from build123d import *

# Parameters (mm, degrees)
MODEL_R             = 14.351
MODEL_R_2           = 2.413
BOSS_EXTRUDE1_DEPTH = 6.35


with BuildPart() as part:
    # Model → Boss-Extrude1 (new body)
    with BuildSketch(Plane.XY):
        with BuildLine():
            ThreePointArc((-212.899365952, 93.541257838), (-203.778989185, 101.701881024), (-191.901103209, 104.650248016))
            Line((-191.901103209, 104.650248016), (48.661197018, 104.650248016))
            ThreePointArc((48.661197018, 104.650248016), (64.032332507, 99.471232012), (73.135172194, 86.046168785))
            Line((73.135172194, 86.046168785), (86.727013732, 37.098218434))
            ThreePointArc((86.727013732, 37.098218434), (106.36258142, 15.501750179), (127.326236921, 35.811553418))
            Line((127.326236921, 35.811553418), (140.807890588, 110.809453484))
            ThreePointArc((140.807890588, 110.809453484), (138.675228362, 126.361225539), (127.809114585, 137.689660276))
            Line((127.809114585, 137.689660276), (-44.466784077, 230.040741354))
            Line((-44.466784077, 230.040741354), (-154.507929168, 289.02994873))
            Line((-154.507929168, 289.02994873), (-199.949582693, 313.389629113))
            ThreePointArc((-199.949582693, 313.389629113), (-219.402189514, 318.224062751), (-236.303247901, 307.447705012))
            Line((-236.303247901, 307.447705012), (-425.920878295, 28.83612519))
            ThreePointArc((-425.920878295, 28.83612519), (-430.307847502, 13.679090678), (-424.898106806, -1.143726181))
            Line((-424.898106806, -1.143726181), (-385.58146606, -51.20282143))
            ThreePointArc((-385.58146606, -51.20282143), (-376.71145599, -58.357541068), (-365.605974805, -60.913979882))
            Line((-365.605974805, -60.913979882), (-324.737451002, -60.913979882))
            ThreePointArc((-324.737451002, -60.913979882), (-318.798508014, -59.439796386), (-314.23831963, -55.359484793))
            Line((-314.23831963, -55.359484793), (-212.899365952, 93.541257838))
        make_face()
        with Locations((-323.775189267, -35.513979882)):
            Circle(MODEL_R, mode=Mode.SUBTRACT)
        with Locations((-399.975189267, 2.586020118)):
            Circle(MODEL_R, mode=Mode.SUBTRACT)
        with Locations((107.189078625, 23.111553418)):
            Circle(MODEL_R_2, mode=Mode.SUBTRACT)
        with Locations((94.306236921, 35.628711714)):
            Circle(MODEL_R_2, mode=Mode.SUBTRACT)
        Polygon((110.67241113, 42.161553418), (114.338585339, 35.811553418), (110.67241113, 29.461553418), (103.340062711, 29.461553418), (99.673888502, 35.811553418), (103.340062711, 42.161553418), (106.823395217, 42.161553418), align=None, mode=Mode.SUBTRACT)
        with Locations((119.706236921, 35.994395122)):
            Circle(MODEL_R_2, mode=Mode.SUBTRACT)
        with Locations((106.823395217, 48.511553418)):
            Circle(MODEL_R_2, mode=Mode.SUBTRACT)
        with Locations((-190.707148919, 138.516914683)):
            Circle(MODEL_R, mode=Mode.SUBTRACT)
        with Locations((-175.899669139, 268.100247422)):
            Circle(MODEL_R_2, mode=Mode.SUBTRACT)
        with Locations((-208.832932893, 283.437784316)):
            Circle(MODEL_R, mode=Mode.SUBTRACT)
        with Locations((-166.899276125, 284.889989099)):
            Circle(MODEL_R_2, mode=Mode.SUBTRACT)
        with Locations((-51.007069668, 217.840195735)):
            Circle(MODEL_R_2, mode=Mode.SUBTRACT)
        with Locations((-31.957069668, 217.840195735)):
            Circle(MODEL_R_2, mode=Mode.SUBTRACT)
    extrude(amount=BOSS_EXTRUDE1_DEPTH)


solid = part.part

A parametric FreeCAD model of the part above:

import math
import FreeCAD as App
import Part
import Sketcher

V = App.Vector
Q = App.Units.Quantity

doc = App.newDocument("Part")
body = doc.addObject("PartDesign::Body", "Body")

# Sketch on XY plane
sketch1 = body.newObject("Sketcher::SketchObject", "Sketch")
sketch1.AttachmentSupport = (doc.getObject("XY_Plane"), [""])
sketch1.MapMode = "FlatFace"
sketch1.addGeometry(Part.ArcOfCircle(Part.Circle(V(-191.9, 79.3, 0), V(0, 0, 1), 25.4), math.radians(90), math.radians(146)), False)
sketch1.addGeometry(Part.LineSegment(V(-191.9, 104.7, 0), V(48.7, 104.7, 0)), False)
sketch1.addGeometry(Part.ArcOfCircle(Part.Circle(V(48.7, 79.3, 0), V(0, 0, 1), 25.4), math.radians(16), math.radians(90)), False)
sketch1.addGeometry(Part.LineSegment(V(73.1, 86, 0), V(86.7, 37.1, 0)), False)
sketch1.addGeometry(Part.ArcOfCircle(Part.Circle(V(107, 35.8, 0), V(0, 0, 1), 20.3), math.radians(176), math.radians(360)), False)
sketch1.addGeometry(Part.LineSegment(V(127.3, 35.8, 0), V(140.8, 110.8, 0)), False)
sketch1.addGeometry(Part.ArcOfCircle(Part.Circle(V(115.8, 115.3, 0), V(0, 0, 1), 25.4), math.radians(-10), math.radians(62)), False)
sketch1.addGeometry(Part.LineSegment(V(127.8, 137.7, 0), V(-44.5, 230, 0)), False)
sketch1.addGeometry(Part.LineSegment(V(-44.5, 230, 0), V(-154.5, 289, 0)), False)
sketch1.addGeometry(Part.LineSegment(V(-154.5, 289, 0), V(-199.9, 313.4, 0)), False)
sketch1.addGeometry(Part.ArcOfCircle(Part.Circle(V(-215.3, 293.2, 0), V(0, 0, 1), 25.4), math.radians(53), math.radians(146)), False)
sketch1.addGeometry(Part.LineSegment(V(-236.3, 307.4, 0), V(-425.9, 28.8, 0)), False)
sketch1.addGeometry(Part.ArcOfCircle(Part.Circle(V(-404.9, 14.5, 0), V(0, 0, 1), 25.4), math.radians(146), math.radians(218)), False)
sketch1.addGeometry(Part.LineSegment(V(-424.9, -1.1, 0), V(-385.6, -51.2, 0)), False)
sketch1.addGeometry(Part.ArcOfCircle(Part.Circle(V(-365.6, -35.5, 0), V(0, 0, 1), 25.4), math.radians(-142), math.radians(-90)), False)
sketch1.addGeometry(Part.LineSegment(V(-365.6, -60.9, 0), V(-324.7, -60.9, 0)), False)
sketch1.addGeometry(Part.ArcOfCircle(Part.Circle(V(-324.7, -48.2, 0), V(0, 0, 1), 12.7), math.radians(-90), math.radians(-34)), False)
sketch1.addGeometry(Part.LineSegment(V(-314.2, -55.4, 0), V(-212.9, 93.5, 0)), False)
sketch1.addGeometry(Part.Circle(V(-323.8, -35.5, 0), V(0, 0, 1), 14.4), False)
sketch1.addGeometry(Part.Circle(V(-400, 2.6, 0), V(0, 0, 1), 14.4), False)
sketch1.addGeometry(Part.Circle(V(107.2, 23.1, 0), V(0, 0, 1), 2.4), False)
sketch1.addGeometry(Part.Circle(V(94.3, 35.6, 0), V(0, 0, 1), 2.4), False)
sketch1.addGeometry(Part.LineSegment(V(103.3, 42.2, 0), V(110.7, 42.2, 0)), False)
sketch1.addGeometry(Part.LineSegment(V(110.7, 42.2, 0), V(114.3, 35.8, 0)), False)
sketch1.addGeometry(Part.LineSegment(V(114.3, 35.8, 0), V(110.7, 29.5, 0)), False)
sketch1.addGeometry(Part.LineSegment(V(110.7, 29.5, 0), V(103.3, 29.5, 0)), False)
sketch1.addGeometry(Part.LineSegment(V(103.3, 29.5, 0), V(99.7, 35.8, 0)), False)
sketch1.addGeometry(Part.LineSegment(V(99.7, 35.8, 0), V(103.3, 42.2, 0)), False)
sketch1.addGeometry(Part.Circle(V(119.7, 36, 0), V(0, 0, 1), 2.4), False)
sketch1.addGeometry(Part.Circle(V(106.8, 48.5, 0), V(0, 0, 1), 2.4), False)
sketch1.addGeometry(Part.Circle(V(-190.7, 138.5, 0), V(0, 0, 1), 14.4), False)
sketch1.addGeometry(Part.Circle(V(-175.9, 268.1, 0), V(0, 0, 1), 2.4), False)
sketch1.addGeometry(Part.Circle(V(-208.8, 283.4, 0), V(0, 0, 1), 14.4), False)
sketch1.addGeometry(Part.Circle(V(-166.9, 284.9, 0), V(0, 0, 1), 2.4), False)
sketch1.addGeometry(Part.Circle(V(-51, 217.8, 0), V(0, 0, 1), 2.4), False)
sketch1.addGeometry(Part.Circle(V(-32, 217.8, 0), V(0, 0, 1), 2.4), False)
sketch1.addConstraint(Sketcher.Constraint("Tangent", 0, 1, 1, 1))
sketch1.addConstraint(Sketcher.Constraint("Tangent", 1, 2, 2, 2))
sketch1.addConstraint(Sketcher.Constraint("Tangent", 2, 1, 3, 1))
sketch1.addConstraint(Sketcher.Constraint("Coincident", 3, 2, 4, 1))
sketch1.addConstraint(Sketcher.Constraint("Coincident", 4, 2, 5, 1))
sketch1.addConstraint(Sketcher.Constraint("Tangent", 5, 2, 6, 1))
sketch1.addConstraint(Sketcher.Constraint("Tangent", 6, 2, 7, 1))
sketch1.addConstraint(Sketcher.Constraint("Coincident", 7, 2, 8, 1))
sketch1.addConstraint(Sketcher.Constraint("Coincident", 8, 2, 9, 1))
sketch1.addConstraint(Sketcher.Constraint("Coincident", 9, 2, 10, 1))
sketch1.addConstraint(Sketcher.Constraint("Tangent", 10, 2, 11, 1))
sketch1.addConstraint(Sketcher.Constraint("Tangent", 11, 2, 12, 1))
sketch1.addConstraint(Sketcher.Constraint("Tangent", 12, 2, 13, 1))
sketch1.addConstraint(Sketcher.Constraint("Tangent", 13, 2, 14, 1))
sketch1.addConstraint(Sketcher.Constraint("Tangent", 14, 2, 15, 1))
sketch1.addConstraint(Sketcher.Constraint("Tangent", 15, 2, 16, 1))
sketch1.addConstraint(Sketcher.Constraint("Tangent", 16, 2, 17, 1))
sketch1.addConstraint(Sketcher.Constraint("Tangent", 17, 2, 0, 2))
sketch1.addConstraint(Sketcher.Constraint("Coincident", 22, 2, 23, 1))
sketch1.addConstraint(Sketcher.Constraint("Coincident", 23, 2, 24, 1))
sketch1.addConstraint(Sketcher.Constraint("Coincident", 24, 2, 25, 1))
sketch1.addConstraint(Sketcher.Constraint("Coincident", 25, 2, 26, 1))
sketch1.addConstraint(Sketcher.Constraint("Coincident", 26, 2, 27, 1))
sketch1.addConstraint(Sketcher.Constraint("Coincident", 27, 2, 22, 1))
sketch1.addConstraint(Sketcher.Constraint("Horizontal", 1))
sketch1.addConstraint(Sketcher.Constraint("Horizontal", 15))
sketch1.addConstraint(Sketcher.Constraint("Horizontal", 22))
sketch1.addConstraint(Sketcher.Constraint("Horizontal", 25))
sketch1.addConstraint(Sketcher.Constraint("Equal", 0, 2))
sketch1.addConstraint(Sketcher.Constraint("Equal", 2, 6))
sketch1.addConstraint(Sketcher.Constraint("Equal", 6, 10))
sketch1.addConstraint(Sketcher.Constraint("Equal", 10, 12))
sketch1.addConstraint(Sketcher.Constraint("Equal", 12, 14))
sketch1.addConstraint(Sketcher.Constraint("Equal", 18, 19))
sketch1.addConstraint(Sketcher.Constraint("Equal", 20, 21))
sketch1.addConstraint(Sketcher.Constraint("Equal", 21, 28))
sketch1.addConstraint(Sketcher.Constraint("Equal", 28, 29))
sketch1.addConstraint(Sketcher.Constraint("Equal", 19, 30))
sketch1.addConstraint(Sketcher.Constraint("Equal", 29, 31))
sketch1.addConstraint(Sketcher.Constraint("Equal", 30, 32))
sketch1.addConstraint(Sketcher.Constraint("Equal", 31, 33))
sketch1.addConstraint(Sketcher.Constraint("Equal", 33, 34))
sketch1.addConstraint(Sketcher.Constraint("Equal", 34, 35))
sketch1.addConstraint(Sketcher.Constraint("Parallel", 7, 8))
sketch1.addConstraint(Sketcher.Constraint("Parallel", 8, 9))
sketch1.addConstraint(Sketcher.Constraint("Parallel", 11, 17))
sketch1.addConstraint(Sketcher.Constraint("Parallel", 23, 26))
sketch1.addConstraint(Sketcher.Constraint("Parallel", 24, 27))
sketch1.addConstraint(Sketcher.Constraint("Horizontal", 14, 3, 18, 3))
sketch1.addConstraint(Sketcher.Constraint("Horizontal", 34, 3, 35, 3))
sketch1.addConstraint(Sketcher.Constraint("Horizontal", 4, 2, 23, 2))
sketch1.addConstraint(Sketcher.Constraint("Horizontal", 23, 2, 26, 2))
sketch1.addConstraint(Sketcher.Constraint("Vertical", 22, 2, 24, 2))
sketch1.addConstraint(Sketcher.Constraint("Vertical", 25, 2, 27, 2))
sketch1.addConstraint(Sketcher.Constraint("Radius", 0, Q("1 in")))
sketch1.addConstraint(Sketcher.Constraint("Radius", 4, Q("0.8 in")))
sketch1.addConstraint(Sketcher.Constraint("Radius", 16, Q("0.5 in")))
sketch1.addConstraint(Sketcher.Constraint("Diameter", 18, Q("1.13 in")))
sketch1.addConstraint(Sketcher.Constraint("Diameter", 20, Q("0.19 in")))
sketch1.addConstraint(Sketcher.Constraint("Distance", 3, Q("2 in")))
sketch1.addConstraint(Sketcher.Constraint("Distance", 5, Q("3 in")))
sketch1.addConstraint(Sketcher.Constraint("Angle", 23, Q("-60 deg")))
sketch1.addConstraint(Sketcher.Constraint("DistanceX", 19, 3, 18, 3, Q("3 in")))
sketch1.addConstraint(Sketcher.Constraint("DistanceY", 16, 3, 19, 3, Q("2 in")))
sketch1.addConstraint(Sketcher.Constraint("DistanceX", 21, 3, 28, 3, Q("1 in")))
sketch1.addConstraint(Sketcher.Constraint("DistanceY", 20, 3, 29, 3, Q("1 in")))
sketch1.addConstraint(Sketcher.Constraint("DistanceY", 20, 3, 4, 3, Q("0.5 in")))
sketch1.addConstraint(Sketcher.Constraint("DistanceX", 21, 3, 4, 3, Q("0.5 in")))
sketch1.addConstraint(Sketcher.Constraint("DistanceY", 20, 3, 4, 2, Q("0.5 in")))
sketch1.addConstraint(Sketcher.Constraint("DistanceY", 24, 2, 22, 2, Q("0.5 in")))
sketch1.addConstraint(Sketcher.Constraint("DistanceX", 34, 3, 35, 3, Q("0.75 in")))
sketch1.addConstraint(Sketcher.Constraint("DistanceX", 1, 1, 1, 2, 240.5623))
sketch1.addConstraint(Sketcher.Constraint("DistanceX", 22, 1, 22, 2, 7.332348))
sketch1.addConstraint(Sketcher.Constraint("DistanceX", 2, 3, 29, 3, 58.162198))
sketch1.addConstraint(Sketcher.Constraint("DistanceY", 0, 3, 31, 3, 188.849999))
sketch1.addConstraint(Sketcher.Constraint("DistanceX", 31, 3, 34, 3, 124.892599))
sketch1.addConstraint(Sketcher.Constraint("DistanceX", 6, 3, 5, 2, 24.9993))
sketch1.addConstraint(Sketcher.Constraint("DistanceY", 31, 3, 8, 2, 20.929701))
sketch1.addConstraint(Sketcher.Constraint("Distance", 7, 195.467919))
sketch1.addConstraint(Sketcher.Constraint("Distance", 9, 51.559072))
sketch1.addConstraint(Sketcher.Constraint("Distance", 11, 337.015219))
sketch1.addConstraint(Sketcher.Constraint("DistanceX", 15, 1, 15, 2, 40.868524))
sketch1.addConstraint(Sketcher.Constraint("DistanceY", -1, 1, 0, 3, 79.250248))
sketch1.addConstraint(Sketcher.Constraint("DistanceX", -1, 1, 6, 3, 115.808591))
sketch1.addConstraint(Sketcher.Constraint("DistanceY", -1, 1, 6, 3, 115.303338))
sketch1.addConstraint(Sketcher.Constraint("DistanceY", 14, 3, -1, 1, 35.51398))
sketch1.addConstraint(Sketcher.Constraint("DistanceX", 16, 3, -1, 1, 324.737451))
sketch1.addConstraint(Sketcher.Constraint("DistanceX", 18, 3, -1, 1, 323.775189))
sketch1.addConstraint(Sketcher.Constraint("DistanceX", -1, 1, 20, 3, 107.189079))
sketch1.addConstraint(Sketcher.Constraint("DistanceY", -1, 1, 21, 3, 35.628712))
sketch1.addConstraint(Sketcher.Constraint("DistanceX", 30, 3, -1, 1, 190.707149))
sketch1.addConstraint(Sketcher.Constraint("DistanceX", 31, 3, -1, 1, 175.899669))
sketch1.addConstraint(Sketcher.Constraint("DistanceY", -1, 1, 33, 3, 284.889989))
sketch1.addConstraint(Sketcher.Constraint("DistanceY", -1, 1, 2, 1, 86.046169))
sketch1.addConstraint(Sketcher.Constraint("DistanceY", -1, 1, 7, 2, 230.040741))
sketch1.addConstraint(Sketcher.Constraint("DistanceX", 11, 2, -1, 1, 425.920878))
sketch1.addConstraint(Sketcher.Constraint("DistanceX", -1, 1, 22, 2, 110.672411))
sketch1.addConstraint(Sketcher.Constraint("DistanceY", 4, 3, 28, 3, 0.182842))
sketch1.addConstraint(Sketcher.Constraint("DistanceY", 30, 3, 10, 3, 154.639781))
sketch1.addConstraint(Sketcher.Constraint("DistanceY", 32, 3, 10, 3, 9.718911))
sketch1.addConstraint(Sketcher.Constraint("DistanceX", 32, 3, 0, 3, 16.93183))
sketch1.addConstraint(Sketcher.Constraint("DistanceX", 10, 3, 33, 3, 48.405709))
sketch1.addConstraint(Sketcher.Constraint("DistanceY", 34, 3, 31, 3, 50.260052))
pad1 = body.newObject("PartDesign::Pad", "Pad")
pad1.Profile = sketch1
pad1.Length = Q("0.25 in")

doc.recompute()
